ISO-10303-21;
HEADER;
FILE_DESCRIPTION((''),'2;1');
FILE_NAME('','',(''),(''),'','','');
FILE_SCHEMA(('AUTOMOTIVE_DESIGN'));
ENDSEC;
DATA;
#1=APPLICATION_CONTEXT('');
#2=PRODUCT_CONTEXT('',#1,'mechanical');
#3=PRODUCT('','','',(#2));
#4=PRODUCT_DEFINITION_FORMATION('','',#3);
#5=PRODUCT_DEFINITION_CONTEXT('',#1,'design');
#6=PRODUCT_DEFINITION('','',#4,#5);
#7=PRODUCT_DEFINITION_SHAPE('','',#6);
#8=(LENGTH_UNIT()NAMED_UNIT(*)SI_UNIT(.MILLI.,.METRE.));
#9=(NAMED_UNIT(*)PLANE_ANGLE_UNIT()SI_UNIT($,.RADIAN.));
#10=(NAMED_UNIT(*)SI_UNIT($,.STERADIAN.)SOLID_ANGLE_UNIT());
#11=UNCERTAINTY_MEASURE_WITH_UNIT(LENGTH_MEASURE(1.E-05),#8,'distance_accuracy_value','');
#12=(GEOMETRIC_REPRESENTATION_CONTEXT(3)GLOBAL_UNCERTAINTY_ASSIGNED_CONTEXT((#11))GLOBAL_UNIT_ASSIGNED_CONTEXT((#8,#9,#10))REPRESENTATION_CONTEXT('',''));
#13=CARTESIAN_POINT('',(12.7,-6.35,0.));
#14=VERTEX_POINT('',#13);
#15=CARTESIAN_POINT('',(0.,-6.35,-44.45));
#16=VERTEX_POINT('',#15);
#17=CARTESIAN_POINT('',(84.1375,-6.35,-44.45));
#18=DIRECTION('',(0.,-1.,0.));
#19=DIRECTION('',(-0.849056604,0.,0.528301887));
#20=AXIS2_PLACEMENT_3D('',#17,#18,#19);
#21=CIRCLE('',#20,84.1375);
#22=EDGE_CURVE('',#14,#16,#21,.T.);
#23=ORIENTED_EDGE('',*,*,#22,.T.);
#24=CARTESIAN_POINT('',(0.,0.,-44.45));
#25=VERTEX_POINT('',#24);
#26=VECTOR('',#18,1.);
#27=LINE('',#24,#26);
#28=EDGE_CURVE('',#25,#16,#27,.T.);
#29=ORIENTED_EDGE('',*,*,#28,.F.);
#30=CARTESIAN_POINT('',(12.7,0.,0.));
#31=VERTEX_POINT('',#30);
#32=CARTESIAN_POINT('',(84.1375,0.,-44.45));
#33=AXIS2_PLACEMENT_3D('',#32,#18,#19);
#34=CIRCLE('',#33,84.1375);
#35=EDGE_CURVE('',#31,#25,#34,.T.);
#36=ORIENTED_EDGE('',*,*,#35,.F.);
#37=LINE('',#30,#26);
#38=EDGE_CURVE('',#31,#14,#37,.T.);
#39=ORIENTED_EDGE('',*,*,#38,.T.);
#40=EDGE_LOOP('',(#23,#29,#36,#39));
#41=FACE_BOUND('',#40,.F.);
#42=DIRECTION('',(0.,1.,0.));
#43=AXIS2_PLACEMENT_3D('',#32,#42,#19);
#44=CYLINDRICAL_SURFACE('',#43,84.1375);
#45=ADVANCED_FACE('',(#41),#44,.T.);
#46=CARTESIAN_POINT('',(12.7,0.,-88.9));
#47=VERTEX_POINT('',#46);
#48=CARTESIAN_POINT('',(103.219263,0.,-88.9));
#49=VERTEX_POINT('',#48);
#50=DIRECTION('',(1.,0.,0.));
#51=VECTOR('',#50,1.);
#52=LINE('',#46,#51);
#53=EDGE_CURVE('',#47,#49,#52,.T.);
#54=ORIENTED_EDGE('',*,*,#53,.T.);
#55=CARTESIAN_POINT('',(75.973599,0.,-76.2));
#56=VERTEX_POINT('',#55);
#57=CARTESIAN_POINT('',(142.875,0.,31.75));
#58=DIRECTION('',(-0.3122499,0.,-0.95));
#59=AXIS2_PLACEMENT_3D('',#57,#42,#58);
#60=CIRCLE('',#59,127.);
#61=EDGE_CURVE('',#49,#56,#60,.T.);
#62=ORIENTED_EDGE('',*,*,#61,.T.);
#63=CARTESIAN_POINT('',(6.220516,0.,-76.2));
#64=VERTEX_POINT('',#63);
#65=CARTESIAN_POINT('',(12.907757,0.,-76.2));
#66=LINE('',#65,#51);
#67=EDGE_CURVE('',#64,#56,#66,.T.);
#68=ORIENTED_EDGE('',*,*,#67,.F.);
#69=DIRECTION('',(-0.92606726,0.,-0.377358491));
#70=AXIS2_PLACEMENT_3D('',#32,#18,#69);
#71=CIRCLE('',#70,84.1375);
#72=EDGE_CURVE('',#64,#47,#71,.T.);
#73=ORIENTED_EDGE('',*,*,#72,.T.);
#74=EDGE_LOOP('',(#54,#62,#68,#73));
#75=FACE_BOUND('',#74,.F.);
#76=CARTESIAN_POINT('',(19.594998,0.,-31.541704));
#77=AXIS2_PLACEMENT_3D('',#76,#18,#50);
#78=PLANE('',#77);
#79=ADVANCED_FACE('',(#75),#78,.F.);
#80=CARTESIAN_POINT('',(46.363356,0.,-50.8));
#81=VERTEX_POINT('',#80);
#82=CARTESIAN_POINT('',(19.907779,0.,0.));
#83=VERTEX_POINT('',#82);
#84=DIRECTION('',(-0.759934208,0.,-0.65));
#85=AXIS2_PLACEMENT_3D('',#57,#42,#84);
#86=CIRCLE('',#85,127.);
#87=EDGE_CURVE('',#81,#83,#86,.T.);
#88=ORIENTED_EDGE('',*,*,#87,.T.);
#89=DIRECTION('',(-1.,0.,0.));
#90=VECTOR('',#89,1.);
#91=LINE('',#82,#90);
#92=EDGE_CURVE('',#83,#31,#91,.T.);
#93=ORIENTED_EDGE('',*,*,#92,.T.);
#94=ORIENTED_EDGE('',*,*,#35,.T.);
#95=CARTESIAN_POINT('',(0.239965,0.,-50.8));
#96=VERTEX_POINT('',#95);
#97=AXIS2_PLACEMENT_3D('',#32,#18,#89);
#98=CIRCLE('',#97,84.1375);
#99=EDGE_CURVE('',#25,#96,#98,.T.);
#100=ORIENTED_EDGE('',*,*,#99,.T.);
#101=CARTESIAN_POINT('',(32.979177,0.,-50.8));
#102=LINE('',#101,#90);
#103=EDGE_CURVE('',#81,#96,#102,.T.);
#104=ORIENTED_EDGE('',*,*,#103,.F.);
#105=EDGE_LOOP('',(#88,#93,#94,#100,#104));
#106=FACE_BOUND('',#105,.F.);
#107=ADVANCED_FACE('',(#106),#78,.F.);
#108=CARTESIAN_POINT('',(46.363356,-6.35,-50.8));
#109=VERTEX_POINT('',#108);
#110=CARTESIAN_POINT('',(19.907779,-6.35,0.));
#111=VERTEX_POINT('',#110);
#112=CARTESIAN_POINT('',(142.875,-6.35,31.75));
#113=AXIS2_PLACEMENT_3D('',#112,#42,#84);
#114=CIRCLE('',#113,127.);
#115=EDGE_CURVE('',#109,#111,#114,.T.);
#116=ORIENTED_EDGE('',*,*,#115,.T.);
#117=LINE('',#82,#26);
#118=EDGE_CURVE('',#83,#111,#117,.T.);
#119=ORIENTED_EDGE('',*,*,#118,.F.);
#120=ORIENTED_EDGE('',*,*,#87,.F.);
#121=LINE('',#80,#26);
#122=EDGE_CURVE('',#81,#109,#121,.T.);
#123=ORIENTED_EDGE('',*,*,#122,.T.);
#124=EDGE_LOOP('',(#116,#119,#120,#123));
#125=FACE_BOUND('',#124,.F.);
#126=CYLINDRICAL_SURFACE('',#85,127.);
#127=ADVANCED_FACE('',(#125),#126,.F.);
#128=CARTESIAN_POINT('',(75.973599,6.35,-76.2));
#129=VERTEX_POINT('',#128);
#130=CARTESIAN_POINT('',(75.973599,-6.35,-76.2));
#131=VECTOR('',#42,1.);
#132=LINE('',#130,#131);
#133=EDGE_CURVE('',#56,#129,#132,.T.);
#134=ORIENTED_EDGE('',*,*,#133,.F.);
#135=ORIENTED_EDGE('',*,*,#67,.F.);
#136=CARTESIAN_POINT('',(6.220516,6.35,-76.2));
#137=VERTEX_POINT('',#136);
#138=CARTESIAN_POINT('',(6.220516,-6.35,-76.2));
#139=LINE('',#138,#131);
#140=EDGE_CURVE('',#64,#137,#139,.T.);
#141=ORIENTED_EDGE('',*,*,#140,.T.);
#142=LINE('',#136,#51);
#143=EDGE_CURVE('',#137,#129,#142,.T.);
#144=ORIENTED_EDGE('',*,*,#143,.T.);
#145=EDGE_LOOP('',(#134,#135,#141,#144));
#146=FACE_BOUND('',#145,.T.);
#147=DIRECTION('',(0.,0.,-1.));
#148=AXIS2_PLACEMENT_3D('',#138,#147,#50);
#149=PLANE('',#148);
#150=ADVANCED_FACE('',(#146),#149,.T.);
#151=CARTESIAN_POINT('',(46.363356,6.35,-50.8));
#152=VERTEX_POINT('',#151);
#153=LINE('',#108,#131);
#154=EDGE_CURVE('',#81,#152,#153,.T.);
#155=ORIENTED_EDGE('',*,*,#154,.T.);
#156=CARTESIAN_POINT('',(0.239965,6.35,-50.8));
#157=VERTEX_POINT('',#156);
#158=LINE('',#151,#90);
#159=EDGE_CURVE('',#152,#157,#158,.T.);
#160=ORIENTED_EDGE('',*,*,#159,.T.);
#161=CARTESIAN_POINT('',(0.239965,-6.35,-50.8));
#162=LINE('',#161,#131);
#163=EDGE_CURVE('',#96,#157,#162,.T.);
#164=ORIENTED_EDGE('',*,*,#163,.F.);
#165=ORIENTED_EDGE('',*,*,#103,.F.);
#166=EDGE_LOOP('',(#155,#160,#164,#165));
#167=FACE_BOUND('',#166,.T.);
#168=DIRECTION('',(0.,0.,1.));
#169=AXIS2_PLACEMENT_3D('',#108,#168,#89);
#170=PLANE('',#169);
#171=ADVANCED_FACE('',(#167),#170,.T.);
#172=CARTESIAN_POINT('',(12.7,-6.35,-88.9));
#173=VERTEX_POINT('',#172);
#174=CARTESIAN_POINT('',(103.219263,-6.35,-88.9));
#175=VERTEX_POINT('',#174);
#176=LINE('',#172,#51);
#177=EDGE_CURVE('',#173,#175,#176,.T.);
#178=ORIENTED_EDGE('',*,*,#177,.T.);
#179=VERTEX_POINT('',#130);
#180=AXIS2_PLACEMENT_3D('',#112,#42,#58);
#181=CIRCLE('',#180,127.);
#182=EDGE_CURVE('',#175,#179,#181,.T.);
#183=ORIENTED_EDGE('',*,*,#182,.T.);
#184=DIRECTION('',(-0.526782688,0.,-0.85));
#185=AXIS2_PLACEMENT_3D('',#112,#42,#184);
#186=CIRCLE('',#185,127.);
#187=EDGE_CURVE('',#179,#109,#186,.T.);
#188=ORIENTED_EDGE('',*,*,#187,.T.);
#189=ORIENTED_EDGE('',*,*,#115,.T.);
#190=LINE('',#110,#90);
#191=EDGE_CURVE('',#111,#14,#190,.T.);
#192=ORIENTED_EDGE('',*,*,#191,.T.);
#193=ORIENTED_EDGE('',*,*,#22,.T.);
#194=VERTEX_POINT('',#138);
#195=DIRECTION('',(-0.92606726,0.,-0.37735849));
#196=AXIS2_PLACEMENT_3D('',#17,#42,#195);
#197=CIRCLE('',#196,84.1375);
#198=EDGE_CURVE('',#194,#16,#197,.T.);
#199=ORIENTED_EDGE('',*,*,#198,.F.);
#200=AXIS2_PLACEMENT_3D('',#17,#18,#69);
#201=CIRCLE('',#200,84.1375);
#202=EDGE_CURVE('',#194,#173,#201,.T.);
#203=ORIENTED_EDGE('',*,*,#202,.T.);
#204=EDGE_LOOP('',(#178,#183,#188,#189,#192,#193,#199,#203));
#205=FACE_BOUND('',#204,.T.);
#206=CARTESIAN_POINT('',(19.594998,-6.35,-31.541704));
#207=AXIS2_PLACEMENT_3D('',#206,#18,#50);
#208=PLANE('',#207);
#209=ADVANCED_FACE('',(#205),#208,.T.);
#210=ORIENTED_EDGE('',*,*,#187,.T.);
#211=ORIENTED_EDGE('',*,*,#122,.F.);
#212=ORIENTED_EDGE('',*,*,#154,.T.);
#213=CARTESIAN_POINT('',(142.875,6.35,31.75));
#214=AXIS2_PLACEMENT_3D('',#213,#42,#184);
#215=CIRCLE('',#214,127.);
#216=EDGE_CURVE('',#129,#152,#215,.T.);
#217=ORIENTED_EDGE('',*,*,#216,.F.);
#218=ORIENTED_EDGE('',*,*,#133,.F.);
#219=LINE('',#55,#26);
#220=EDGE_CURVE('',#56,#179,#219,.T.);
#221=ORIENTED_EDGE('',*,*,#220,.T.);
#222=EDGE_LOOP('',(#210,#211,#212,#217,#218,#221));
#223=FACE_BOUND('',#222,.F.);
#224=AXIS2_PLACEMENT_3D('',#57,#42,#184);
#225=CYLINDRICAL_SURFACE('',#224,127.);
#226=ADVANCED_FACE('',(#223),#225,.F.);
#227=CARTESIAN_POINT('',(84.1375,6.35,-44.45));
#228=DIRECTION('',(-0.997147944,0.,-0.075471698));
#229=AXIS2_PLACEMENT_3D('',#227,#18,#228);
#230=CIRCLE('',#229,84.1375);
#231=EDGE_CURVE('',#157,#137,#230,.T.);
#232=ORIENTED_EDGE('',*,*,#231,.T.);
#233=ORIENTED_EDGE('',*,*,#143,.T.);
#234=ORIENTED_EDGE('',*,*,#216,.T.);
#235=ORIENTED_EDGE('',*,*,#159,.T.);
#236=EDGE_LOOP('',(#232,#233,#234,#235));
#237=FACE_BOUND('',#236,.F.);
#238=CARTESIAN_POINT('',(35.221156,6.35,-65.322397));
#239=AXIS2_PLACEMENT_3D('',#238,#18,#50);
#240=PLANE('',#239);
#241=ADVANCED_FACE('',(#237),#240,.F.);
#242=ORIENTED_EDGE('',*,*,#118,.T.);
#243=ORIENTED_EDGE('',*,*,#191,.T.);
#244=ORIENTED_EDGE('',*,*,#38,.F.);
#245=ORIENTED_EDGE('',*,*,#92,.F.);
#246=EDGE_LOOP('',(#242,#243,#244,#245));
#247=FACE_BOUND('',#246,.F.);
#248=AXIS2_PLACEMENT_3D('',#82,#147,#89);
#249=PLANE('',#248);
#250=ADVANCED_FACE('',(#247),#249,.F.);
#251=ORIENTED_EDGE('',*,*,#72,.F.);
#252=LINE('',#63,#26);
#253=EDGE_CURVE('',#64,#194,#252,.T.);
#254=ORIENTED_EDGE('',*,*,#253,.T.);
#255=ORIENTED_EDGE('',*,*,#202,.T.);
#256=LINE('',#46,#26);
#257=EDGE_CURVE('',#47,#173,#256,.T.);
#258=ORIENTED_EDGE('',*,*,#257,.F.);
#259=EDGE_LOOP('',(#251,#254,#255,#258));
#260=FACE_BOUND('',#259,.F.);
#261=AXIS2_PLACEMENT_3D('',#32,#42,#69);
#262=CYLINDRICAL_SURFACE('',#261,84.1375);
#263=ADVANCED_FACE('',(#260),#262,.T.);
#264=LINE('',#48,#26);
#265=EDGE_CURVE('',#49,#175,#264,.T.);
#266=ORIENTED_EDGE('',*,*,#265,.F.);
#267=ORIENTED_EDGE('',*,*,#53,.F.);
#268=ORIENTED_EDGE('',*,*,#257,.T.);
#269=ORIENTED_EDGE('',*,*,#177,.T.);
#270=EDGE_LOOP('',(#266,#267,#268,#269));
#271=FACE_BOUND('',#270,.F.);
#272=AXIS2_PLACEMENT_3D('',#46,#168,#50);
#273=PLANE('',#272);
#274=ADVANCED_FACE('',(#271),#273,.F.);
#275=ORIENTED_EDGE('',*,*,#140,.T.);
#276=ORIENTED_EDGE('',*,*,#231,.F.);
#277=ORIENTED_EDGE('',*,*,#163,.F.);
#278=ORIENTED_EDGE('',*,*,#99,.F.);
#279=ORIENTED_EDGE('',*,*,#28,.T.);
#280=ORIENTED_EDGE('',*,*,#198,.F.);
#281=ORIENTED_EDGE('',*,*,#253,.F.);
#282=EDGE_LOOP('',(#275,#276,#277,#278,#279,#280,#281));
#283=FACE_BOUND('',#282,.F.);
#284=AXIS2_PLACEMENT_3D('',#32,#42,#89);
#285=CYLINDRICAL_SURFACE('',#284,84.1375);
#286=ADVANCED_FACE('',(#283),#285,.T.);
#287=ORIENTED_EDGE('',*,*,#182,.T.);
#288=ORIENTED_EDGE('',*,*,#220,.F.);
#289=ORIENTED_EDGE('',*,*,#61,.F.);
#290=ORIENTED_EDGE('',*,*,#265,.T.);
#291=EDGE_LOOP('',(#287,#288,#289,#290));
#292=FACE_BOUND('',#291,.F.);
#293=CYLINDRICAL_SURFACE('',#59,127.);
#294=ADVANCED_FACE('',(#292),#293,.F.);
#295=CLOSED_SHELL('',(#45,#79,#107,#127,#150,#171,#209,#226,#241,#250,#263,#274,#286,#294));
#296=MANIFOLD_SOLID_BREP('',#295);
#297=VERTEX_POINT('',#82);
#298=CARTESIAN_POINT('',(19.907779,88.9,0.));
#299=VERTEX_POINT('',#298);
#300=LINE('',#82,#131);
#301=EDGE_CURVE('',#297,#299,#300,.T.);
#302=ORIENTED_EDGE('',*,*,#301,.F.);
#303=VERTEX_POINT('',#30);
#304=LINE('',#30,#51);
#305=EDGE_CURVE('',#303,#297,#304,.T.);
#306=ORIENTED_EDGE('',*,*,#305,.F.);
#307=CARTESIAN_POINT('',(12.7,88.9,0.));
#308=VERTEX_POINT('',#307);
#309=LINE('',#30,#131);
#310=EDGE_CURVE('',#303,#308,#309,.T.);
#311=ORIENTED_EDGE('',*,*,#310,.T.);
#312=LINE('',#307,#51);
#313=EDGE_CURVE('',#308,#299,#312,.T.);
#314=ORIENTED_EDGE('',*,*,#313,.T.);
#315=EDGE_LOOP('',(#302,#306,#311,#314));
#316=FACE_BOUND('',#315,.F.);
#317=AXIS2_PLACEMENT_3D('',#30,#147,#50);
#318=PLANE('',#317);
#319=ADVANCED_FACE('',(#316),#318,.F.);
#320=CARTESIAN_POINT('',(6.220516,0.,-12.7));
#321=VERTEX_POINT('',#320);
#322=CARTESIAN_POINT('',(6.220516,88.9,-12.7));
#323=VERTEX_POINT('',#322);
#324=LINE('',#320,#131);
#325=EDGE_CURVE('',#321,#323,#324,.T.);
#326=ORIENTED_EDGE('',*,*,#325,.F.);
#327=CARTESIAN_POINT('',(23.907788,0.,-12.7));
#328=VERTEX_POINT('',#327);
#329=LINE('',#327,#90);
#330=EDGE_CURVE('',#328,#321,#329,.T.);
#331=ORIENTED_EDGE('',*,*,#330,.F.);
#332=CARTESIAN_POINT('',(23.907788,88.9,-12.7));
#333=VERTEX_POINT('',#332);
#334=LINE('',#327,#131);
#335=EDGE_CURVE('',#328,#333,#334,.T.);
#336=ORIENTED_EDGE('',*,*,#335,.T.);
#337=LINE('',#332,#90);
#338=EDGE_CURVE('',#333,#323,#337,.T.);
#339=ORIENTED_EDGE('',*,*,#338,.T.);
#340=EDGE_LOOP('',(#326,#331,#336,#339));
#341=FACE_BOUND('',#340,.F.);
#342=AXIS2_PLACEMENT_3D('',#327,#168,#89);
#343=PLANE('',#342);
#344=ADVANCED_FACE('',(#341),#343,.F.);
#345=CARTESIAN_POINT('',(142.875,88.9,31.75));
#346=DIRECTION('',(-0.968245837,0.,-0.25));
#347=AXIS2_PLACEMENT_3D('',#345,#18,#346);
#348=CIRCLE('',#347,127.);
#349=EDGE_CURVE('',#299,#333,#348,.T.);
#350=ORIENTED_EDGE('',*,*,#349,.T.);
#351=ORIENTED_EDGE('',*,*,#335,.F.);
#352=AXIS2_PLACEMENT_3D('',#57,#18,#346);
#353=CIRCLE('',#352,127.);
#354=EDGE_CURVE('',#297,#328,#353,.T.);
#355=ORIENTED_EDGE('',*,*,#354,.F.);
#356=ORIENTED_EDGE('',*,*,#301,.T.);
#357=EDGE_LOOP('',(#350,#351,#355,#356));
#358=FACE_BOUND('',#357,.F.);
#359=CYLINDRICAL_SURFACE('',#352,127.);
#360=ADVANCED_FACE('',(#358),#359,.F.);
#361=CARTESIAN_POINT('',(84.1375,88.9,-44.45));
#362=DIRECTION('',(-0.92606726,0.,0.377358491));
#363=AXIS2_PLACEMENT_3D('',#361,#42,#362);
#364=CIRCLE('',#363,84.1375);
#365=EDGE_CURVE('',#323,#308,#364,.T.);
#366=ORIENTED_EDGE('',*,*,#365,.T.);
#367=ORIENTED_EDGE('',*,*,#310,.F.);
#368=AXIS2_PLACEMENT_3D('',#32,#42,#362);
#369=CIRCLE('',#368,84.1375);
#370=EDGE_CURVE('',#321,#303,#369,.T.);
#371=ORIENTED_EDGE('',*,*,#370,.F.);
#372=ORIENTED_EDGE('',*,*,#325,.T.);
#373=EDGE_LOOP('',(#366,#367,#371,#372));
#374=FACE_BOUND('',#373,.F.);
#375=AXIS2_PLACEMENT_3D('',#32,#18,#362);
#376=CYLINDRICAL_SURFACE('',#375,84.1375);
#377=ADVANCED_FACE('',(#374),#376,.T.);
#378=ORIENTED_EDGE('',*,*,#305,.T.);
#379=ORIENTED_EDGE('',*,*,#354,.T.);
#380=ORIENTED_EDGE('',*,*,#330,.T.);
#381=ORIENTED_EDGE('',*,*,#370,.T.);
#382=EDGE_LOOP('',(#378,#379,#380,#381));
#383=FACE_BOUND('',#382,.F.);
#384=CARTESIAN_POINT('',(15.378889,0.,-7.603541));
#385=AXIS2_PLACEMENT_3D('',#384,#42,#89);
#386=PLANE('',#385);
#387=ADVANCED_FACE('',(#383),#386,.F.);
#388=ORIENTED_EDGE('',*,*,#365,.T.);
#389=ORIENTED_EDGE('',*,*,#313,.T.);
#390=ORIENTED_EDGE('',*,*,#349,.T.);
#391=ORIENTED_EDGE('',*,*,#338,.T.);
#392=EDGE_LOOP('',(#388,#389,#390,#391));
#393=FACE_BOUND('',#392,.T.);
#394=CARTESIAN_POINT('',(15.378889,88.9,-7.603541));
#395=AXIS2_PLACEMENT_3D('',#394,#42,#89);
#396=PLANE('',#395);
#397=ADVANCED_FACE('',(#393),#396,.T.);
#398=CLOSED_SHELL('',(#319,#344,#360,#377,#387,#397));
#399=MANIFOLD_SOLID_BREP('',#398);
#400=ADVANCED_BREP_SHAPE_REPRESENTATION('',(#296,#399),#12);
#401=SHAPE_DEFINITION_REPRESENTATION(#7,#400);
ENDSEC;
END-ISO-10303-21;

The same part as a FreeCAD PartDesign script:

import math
import FreeCAD as App
import Part
import Sketcher

V = App.Vector
Q = App.Units.Quantity

doc = App.newDocument("Part")
body = doc.addObject("PartDesign::Body", "Body")

# Sketch on XZ plane
sketch1 = body.newObject("Sketcher::SketchObject", "Sketch")
sketch1.AttachmentSupport = (doc.getObject("XZ_Plane"), [""])
sketch1.MapMode = "FlatFace"
sketch1.addGeometry(Part.ArcOfCircle(Part.Circle(V(84.1375, -44.45, 0), V(0, 0, 1), 84.1375), math.radians(148.109208), math.radians(180)), False)
sketch1.addGeometry(Part.ArcOfCircle(Part.Circle(V(84.1375, -44.45, 0), V(0, 0, 1), 84.1375), math.radians(-180), math.radians(-157.829843)), False)
sketch1.addGeometry(Part.ArcOfCircle(Part.Circle(V(84.1375, -44.45, 0), V(0, 0, 1), 84.1375), math.radians(-157.829843), math.radians(-148.109208)), False)
sketch1.addGeometry(Part.LineSegment(V(12.7, -88.9, 0), V(103.219263, -88.9, 0)), False)
sketch1.addGeometry(Part.ArcOfCircle(Part.Circle(V(142.875, 31.75, 0), V(0, 0, 1), 127), math.radians(-121.788331), math.radians(-108.194872)), False)
sketch1.addGeometry(Part.ArcOfCircle(Part.Circle(V(142.875, 31.75, 0), V(0, 0, 1), 127), math.radians(-139.458398), math.radians(-121.788331)), False)
sketch1.addGeometry(Part.ArcOfCircle(Part.Circle(V(142.875, 31.75, 0), V(0, 0, 1), 127), math.radians(-165.522488), math.radians(-139.458398)), False)
sketch1.addGeometry(Part.LineSegment(V(19.907779, 0, 0), V(12.7, 0, 0)), False)
sketch1.addConstraint(Sketcher.Constraint("Tangent", 0, 2, 1, 1))
sketch1.addConstraint(Sketcher.Constraint("Tangent", 1, 2, 2, 1))
sketch1.addConstraint(Sketcher.Constraint("Coincident", 2, 2, 3, 1))
sketch1.addConstraint(Sketcher.Constraint("Coincident", 3, 2, 4, 2))
sketch1.addConstraint(Sketcher.Constraint("Tangent", 4, 1, 5, 2))
sketch1.addConstraint(Sketcher.Constraint("Tangent", 5, 1, 6, 2))
sketch1.addConstraint(Sketcher.Constraint("Coincident", 6, 1, 7, 1))
sketch1.addConstraint(Sketcher.Constraint("Coincident", 7, 2, 0, 1))
sketch1.addConstraint(Sketcher.Constraint("Horizontal", 3))
sketch1.addConstraint(Sketcher.Constraint("Horizontal", 7))
sketch1.addConstraint(Sketcher.Constraint("Coincident", 2, 3, 0, 3))
sketch1.addConstraint(Sketcher.Constraint("Coincident", 6, 3, 4, 3))
sketch1.addConstraint(Sketcher.Constraint("PointOnObject", 0, 2, -2))
sketch1.addConstraint(Sketcher.Constraint("PointOnObject", 6, 1, -1))
sketch1.addConstraint(Sketcher.Constraint("Horizontal", 2, 3, 0, 2))
sketch1.addConstraint(Sketcher.Constraint("Horizontal", 1, 2, 4, 1))
sketch1.addConstraint(Sketcher.Constraint("Vertical", 2, 2, 7, 2))
sketch1.addConstraint(Sketcher.Constraint("Radius", 4, Q("5 in")))
sketch1.addConstraint(Sketcher.Constraint("DistanceY", 1, 2, -1, 1, Q("3 in")))
sketch1.addConstraint(Sketcher.Constraint("DistanceY", 5, 1, -1, 1, Q("2 in")))
sketch1.addConstraint(Sketcher.Constraint("Radius", 0, Q("3.3125 in")))
sketch1.addConstraint(Sketcher.Constraint("DistanceY", 1, 3, 4, 3, Q("3 in")))
sketch1.addConstraint(Sketcher.Constraint("DistanceX", -1, 1, 2, 2, Q("0.5 in")))
sketch1.addConstraint(Sketcher.Constraint("DistanceX", -1, 1, 4, 3, Q("5.625 in")))
pad1 = body.newObject("PartDesign::Pad", "Pad")
pad1.Profile = sketch1
pad1.Length = Q("0.25 in")

# Sketch on XZ plane
sketch2 = body.newObject("Sketcher::SketchObject", "Sketch001")
sketch2.AttachmentSupport = (doc.getObject("XZ_Plane"), [""])
sketch2.MapMode = "FlatFace"
sketch2.AttachmentOffset = App.Placement(V(0, 0, 0.25 * 25.4), App.Rotation())
sketch2.addGeometry(Part.ArcOfCircle(Part.Circle(V(84.1375, -44.45, 0), V(0, 0, 1), 84.1375), math.radians(-175.671675), math.radians(-157.829843)), False)
sketch2.addGeometry(Part.LineSegment(V(6.220516, -76.2, 0), V(75.973599, -76.2, 0)), False)
sketch2.addGeometry(Part.ArcOfCircle(Part.Circle(V(142.875, 31.75, 0), V(0, 0, 1), 127), math.radians(-139.458398), math.radians(-121.788331)), False)
sketch2.addGeometry(Part.LineSegment(V(46.363356, -50.8, 0), V(0.239965, -50.8, 0)), False)
sketch2.addConstraint(Sketcher.Constraint("Coincident", 0, 2, 1, 1))
sketch2.addConstraint(Sketcher.Constraint("Coincident", 1, 2, 2, 2))
sketch2.addConstraint(Sketcher.Constraint("Coincident", 2, 1, 3, 1))
sketch2.addConstraint(Sketcher.Constraint("Coincident", 3, 2, 0, 1))
sketch2.addConstraint(Sketcher.Constraint("Horizontal", 1))
sketch2.addConstraint(Sketcher.Constraint("Horizontal", 3))
sketch2.addConstraint(Sketcher.Constraint("Radius", 2, Q("5 in")))
sketch2.addConstraint(Sketcher.Constraint("DistanceY", 0, 2, -1, 1, Q("3 in")))
sketch2.addConstraint(Sketcher.Constraint("DistanceY", 2, 1, -1, 1, Q("2 in")))
sketch2.addConstraint(Sketcher.Constraint("Radius", 0, Q("3.3125 in")))
sketch2.addConstraint(Sketcher.Constraint("DistanceY", 0, 3, 2, 3, Q("3 in")))
sketch2.addConstraint(Sketcher.Constraint("DistanceY", 0, 3, -1, 1, Q("1.75 in")))
sketch2.addConstraint(Sketcher.Constraint("DistanceX", -1, 1, 0, 3, Q("3.3125 in")))
sketch2.addConstraint(Sketcher.Constraint("DistanceX", -1, 1, 2, 3, Q("5.625 in")))
pad2 = body.newObject("PartDesign::Pad", "Pad001")
pad2.Profile = sketch2
pad2.Length = Q("0.5 in")
pad2.Reversed = True
body2 = doc.addObject("PartDesign::Body", "Body001")

# Sketch on XZ plane
sketch3 = body2.newObject("Sketcher::SketchObject", "Sketch002")
sketch3.AttachmentSupport = (doc.getObject("XZ_Plane001"), [""])
sketch3.MapMode = "FlatFace"
sketch3.addGeometry(Part.ArcOfCircle(Part.Circle(V(142.875, 31.75, 0), V(0, 0, 1), 127), math.radians(-165.522488), math.radians(-159.512685)), False)
sketch3.addGeometry(Part.LineSegment(V(23.907788, -12.7, 0), V(6.220516, -12.7, 0)), False)
sketch3.addGeometry(Part.ArcOfCircle(Part.Circle(V(84.1375, -44.45, 0), V(0, 0, 1), 84.1375), math.radians(148.109208), math.radians(157.829843)), False)
sketch3.addGeometry(Part.LineSegment(V(12.7, 0, 0), V(19.907779, 0, 0)), False)
sketch3.addConstraint(Sketcher.Constraint("Coincident", 0, 2, 1, 1))
sketch3.addConstraint(Sketcher.Constraint("Coincident", 1, 2, 2, 2))
sketch3.addConstraint(Sketcher.Constraint("Coincident", 2, 1, 3, 1))
sketch3.addConstraint(Sketcher.Constraint("Coincident", 3, 2, 0, 1))
sketch3.addConstraint(Sketcher.Constraint("Horizontal", 1))
sketch3.addConstraint(Sketcher.Constraint("Horizontal", 3))
sketch3.addConstraint(Sketcher.Constraint("PointOnObject", 2, 1, -1))
sketch3.addConstraint(Sketcher.Constraint("Radius", 0, Q("5 in")))
sketch3.addConstraint(Sketcher.Constraint("Radius", 2, Q("3.3125 in")))
sketch3.addConstraint(Sketcher.Constraint("DistanceY", 2, 3, 0, 3, Q("3 in")))
sketch3.addConstraint(Sketcher.Constraint("DistanceY", 0, 2, -1, 1, Q("0.5 in")))
sketch3.addConstraint(Sketcher.Constraint("DistanceX", -1, 1, 2, 1, Q("0.5 in")))
sketch3.addConstraint(Sketcher.Constraint("DistanceY", -1, 1, 0, 3, Q("1.25 in")))
sketch3.addConstraint(Sketcher.Constraint("DistanceX", -1, 1, 0, 3, Q("5.625 in")))
pad3 = body2.newObject("PartDesign::Pad", "Pad002")
pad3.Profile = sketch3
pad3.Length = Q("3.5 in")
pad3.Reversed = True

doc.recompute()
